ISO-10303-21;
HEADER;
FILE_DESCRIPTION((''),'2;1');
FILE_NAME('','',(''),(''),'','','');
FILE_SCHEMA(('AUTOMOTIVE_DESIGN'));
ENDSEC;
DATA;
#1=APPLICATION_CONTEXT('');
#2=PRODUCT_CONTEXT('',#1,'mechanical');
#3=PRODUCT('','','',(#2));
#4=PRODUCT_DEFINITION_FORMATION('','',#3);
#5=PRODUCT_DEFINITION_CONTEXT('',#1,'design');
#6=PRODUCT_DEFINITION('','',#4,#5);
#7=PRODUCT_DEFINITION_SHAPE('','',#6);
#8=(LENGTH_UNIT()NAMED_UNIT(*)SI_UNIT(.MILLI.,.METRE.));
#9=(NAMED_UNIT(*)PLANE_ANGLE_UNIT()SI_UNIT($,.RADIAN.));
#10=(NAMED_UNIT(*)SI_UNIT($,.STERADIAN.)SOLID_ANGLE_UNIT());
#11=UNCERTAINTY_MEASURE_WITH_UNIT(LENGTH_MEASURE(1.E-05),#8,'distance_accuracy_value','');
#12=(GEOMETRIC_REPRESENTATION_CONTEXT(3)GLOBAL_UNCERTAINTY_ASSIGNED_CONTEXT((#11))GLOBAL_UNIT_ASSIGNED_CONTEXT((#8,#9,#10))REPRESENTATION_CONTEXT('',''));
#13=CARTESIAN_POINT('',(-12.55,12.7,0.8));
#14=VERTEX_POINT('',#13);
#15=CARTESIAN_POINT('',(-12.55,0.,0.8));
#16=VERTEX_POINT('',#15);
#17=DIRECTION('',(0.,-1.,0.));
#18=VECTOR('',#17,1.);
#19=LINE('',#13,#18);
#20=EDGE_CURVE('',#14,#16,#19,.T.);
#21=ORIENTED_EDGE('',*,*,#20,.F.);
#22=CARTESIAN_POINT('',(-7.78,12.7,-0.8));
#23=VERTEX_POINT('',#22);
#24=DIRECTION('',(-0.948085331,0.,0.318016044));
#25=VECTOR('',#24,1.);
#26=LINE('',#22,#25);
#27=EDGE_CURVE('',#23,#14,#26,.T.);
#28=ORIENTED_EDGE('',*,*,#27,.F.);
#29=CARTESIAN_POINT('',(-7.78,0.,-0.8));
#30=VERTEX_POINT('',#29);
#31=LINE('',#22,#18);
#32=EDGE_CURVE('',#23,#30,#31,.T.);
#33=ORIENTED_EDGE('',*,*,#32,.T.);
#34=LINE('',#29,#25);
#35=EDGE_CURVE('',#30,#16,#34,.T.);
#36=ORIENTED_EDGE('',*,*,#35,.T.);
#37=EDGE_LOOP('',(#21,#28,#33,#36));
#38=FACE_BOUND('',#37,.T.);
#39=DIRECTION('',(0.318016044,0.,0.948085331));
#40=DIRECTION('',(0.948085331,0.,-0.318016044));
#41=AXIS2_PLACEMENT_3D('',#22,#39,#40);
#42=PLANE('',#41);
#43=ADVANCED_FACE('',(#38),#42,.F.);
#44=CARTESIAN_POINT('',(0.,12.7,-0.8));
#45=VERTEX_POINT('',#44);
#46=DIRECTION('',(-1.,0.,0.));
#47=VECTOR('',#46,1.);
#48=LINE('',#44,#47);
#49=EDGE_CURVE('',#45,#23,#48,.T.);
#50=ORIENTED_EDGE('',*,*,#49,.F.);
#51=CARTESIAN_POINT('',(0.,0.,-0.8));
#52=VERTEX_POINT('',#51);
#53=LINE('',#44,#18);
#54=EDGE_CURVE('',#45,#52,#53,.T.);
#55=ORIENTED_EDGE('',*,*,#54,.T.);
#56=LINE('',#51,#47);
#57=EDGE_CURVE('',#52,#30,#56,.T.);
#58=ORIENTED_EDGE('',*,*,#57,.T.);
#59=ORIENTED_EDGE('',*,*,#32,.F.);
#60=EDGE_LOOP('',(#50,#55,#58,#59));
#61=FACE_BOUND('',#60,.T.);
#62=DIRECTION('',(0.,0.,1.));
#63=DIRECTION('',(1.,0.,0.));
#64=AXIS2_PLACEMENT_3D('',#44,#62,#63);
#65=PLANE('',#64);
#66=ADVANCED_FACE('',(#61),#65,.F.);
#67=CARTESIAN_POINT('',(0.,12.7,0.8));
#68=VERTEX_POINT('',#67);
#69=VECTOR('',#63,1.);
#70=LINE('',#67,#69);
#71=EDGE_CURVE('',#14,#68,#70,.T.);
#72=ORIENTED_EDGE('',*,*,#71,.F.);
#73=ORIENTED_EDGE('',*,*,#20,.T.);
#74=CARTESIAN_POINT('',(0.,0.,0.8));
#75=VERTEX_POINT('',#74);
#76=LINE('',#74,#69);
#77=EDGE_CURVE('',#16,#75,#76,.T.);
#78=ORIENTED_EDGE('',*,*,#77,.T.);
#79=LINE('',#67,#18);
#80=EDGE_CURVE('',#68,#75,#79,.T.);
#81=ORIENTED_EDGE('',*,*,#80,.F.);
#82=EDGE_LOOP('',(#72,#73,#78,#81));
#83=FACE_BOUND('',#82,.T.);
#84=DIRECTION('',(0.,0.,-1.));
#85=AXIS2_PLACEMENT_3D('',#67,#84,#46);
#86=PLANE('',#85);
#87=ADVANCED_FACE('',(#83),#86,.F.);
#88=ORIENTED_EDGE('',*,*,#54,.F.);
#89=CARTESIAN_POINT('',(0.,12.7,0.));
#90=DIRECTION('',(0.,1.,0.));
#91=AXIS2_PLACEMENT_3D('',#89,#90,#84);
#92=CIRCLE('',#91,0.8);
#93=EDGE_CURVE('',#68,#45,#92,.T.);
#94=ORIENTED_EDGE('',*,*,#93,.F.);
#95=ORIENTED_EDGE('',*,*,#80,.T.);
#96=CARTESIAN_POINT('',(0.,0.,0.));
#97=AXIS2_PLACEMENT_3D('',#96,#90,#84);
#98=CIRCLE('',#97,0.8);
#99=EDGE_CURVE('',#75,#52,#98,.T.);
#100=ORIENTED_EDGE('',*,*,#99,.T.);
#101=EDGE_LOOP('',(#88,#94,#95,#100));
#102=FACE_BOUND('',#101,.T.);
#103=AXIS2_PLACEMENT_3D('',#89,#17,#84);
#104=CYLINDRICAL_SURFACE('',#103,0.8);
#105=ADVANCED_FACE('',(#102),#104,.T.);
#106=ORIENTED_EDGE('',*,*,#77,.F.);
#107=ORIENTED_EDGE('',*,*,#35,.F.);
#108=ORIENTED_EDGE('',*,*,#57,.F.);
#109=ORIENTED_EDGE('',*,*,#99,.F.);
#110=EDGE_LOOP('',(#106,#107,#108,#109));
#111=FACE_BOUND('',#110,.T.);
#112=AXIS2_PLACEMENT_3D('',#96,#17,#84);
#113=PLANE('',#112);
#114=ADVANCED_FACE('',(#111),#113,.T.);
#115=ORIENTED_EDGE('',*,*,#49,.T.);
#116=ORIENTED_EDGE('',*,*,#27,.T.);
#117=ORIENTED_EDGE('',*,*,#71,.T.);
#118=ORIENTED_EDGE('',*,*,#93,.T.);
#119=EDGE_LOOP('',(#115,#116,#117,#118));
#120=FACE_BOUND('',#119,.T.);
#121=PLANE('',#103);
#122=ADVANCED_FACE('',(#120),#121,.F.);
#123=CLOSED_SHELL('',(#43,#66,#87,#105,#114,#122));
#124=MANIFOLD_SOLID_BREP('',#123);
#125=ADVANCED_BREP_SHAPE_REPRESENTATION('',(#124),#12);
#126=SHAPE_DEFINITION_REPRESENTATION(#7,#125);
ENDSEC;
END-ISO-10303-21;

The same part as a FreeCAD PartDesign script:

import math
import FreeCAD as App
import Part
import Sketcher

V = App.Vector
Q = App.Units.Quantity

doc = App.newDocument("Part")
body = doc.addObject("PartDesign::Body", "Body")

# Sketch on XZ plane
sketch1 = body.newObject("Sketcher::SketchObject", "Sketch")
sketch1.AttachmentSupport = (doc.getObject("XZ_Plane"), [""])
sketch1.MapMode = "FlatFace"
sketch1.addGeometry([
    Part.LineSegment(V(-12.6, 0.8, 0), V(0, 0.8, 0)),
    Part.ArcOfCircle(Part.Circle(V(0, 0, 0), V(0, 0, 1), 0.8), math.radians(-90), math.radians(90)),
    Part.LineSegment(V(0, -0.8, 0), V(-7.8, -0.8, 0)),
    Part.LineSegment(V(-7.8, -0.8, 0), V(-12.6, 0.8, 0)),
], False)
sketch1.addConstraint([
    Sketcher.Constraint("Tangent", 0, 2, 1, 2),
    Sketcher.Constraint("Tangent", 1, 1, 2, 1),
    Sketcher.Constraint("Coincident", 2, 2, 3, 1),
    Sketcher.Constraint("Coincident", 3, 2, 0, 1),
    Sketcher.Constraint("Horizontal", 0),
    Sketcher.Constraint("Horizontal", 2),
    Sketcher.Constraint("Coincident", 1, 3, -1, 1),
    Sketcher.Constraint("Radius", 1, Q("0.8 mm")),
    Sketcher.Constraint("DistanceX", 0, 1, 0, 2, Q("12.55 mm")),
    Sketcher.Constraint("DistanceX", 2, 2, 2, 1, Q("7.78 mm")),
])
pad1 = body.newObject("PartDesign::Pad", "Pad")
pad1.Profile = sketch1
pad1.Length = 12.7
pad1.Reversed = True

doc.recompute()
